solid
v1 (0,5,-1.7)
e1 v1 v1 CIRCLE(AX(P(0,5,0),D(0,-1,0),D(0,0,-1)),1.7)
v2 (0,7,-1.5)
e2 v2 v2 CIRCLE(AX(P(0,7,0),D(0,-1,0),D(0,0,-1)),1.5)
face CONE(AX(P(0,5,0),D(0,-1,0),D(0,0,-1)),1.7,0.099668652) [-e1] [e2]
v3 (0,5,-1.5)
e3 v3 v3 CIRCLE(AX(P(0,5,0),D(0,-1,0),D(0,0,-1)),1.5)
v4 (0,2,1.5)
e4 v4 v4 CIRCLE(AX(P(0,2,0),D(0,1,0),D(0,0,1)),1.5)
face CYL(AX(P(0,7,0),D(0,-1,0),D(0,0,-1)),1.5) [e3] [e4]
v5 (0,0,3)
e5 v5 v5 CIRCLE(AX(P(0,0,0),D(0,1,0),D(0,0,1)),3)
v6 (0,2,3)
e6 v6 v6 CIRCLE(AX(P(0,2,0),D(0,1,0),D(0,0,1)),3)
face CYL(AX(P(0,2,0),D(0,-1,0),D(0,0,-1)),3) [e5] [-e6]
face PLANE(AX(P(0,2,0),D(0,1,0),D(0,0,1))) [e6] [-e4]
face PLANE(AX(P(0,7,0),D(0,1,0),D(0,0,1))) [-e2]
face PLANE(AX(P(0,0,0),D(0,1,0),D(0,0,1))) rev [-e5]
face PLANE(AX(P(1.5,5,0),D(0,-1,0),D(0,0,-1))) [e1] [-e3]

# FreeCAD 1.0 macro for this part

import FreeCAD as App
import Part
import Sketcher

doc = App.newDocument("Part")
params = doc.addObject("Spreadsheet::Sheet", "Params")
for row, (alias, value) in enumerate([
    ("sketch1_diameter", "6 mm"),
    ("pad1_length", "2 mm"),
    ("sketch2_diameter", "3 mm"),
    ("pad2_length", "5 mm"),
    ("sketch3_height", "2 mm"),
    ("sketch3_width", "0.2 mm"),
    ("revolution_angle", "360 deg"),
], start=1):
    params.set(f"A{row}", alias)
    params.set(f"B{row}", "=" + value)
    params.setAlias(f"B{row}", alias)

body = doc.addObject("PartDesign::Body", "Body")

sketch1 = body.newObject("Sketcher::SketchObject", "Sketch")
sketch1.AttachmentSupport = (doc.getObject("XZ_Plane"), [""])
sketch1.MapMode = "FlatFace"
sketch1.addGeometry(Part.Circle(App.Vector(0, 0, 0), App.Vector(0, 0, 1), 3), False)
sketch1.addConstraint([
    Sketcher.Constraint("Coincident", 0, 3, -1, 1),
    Sketcher.Constraint("Diameter", 0, 6.0),
])
sketch1.setExpression("Constraints[1]", "Params.sketch1_diameter")
pad1 = body.newObject("PartDesign::Pad", "Pad")
pad1.Profile = sketch1
pad1.setExpression("Length", "Params.pad1_length")
pad1.Reversed = True

sketch2 = body.newObject("Sketcher::SketchObject", "Sketch001")
sketch2.AttachmentSupport = (doc.getObject("XZ_Plane"), [""])
sketch2.MapMode = "FlatFace"
sketch2.AttachmentOffset = App.Placement(App.Vector(0, 0, -2), App.Rotation())
sketch2.addGeometry(Part.Circle(App.Vector(0, 0, 0), App.Vector(0, 0, 1), 1.5), False)
sketch2.addConstraint([
    Sketcher.Constraint("Coincident", 0, 3, -1, 1),
    Sketcher.Constraint("Diameter", 0, 3.0),
])
sketch2.setExpression("Constraints[1]", "Params.sketch2_diameter")
pad2 = body.newObject("PartDesign::Pad", "Pad001")
pad2.Profile = sketch2
pad2.setExpression("Length", "Params.pad2_length")
pad2.Reversed = True

sketch3 = body.newObject("Sketcher::SketchObject", "Sketch002")
sketch3.AttachmentSupport = (doc.getObject("XY_Plane"), [""])
sketch3.MapMode = "FlatFace"
sketch3.addGeometry([
    Part.LineSegment(App.Vector(1.5, 7, 0), App.Vector(1.5, 5, 0)),
    Part.LineSegment(App.Vector(1.5, 5, 0), App.Vector(1.7, 5, 0)),
    Part.LineSegment(App.Vector(1.7, 5, 0), App.Vector(1.5, 7, 0)),
], False)
sketch3.addConstraint([
    Sketcher.Constraint("Coincident", 0, 2, 1, 1),
    Sketcher.Constraint("Coincident", 1, 2, 2, 1),
    Sketcher.Constraint("Coincident", 2, 2, 0, 1),
    Sketcher.Constraint("Vertical", 0),
    Sketcher.Constraint("Horizontal", 1),
    Sketcher.Constraint("DistanceY", 0, 2, 0, 1, 2.0),
    Sketcher.Constraint("DistanceX", 1, 1, 1, 2, 0.2),
    Sketcher.Constraint("DistanceY", -1, 1, 0, 2, 5.0),
    Sketcher.Constraint("DistanceX", -1, 1, 0, 2, 1.5),
])
sketch3.setExpression("Constraints[5]", "Params.sketch3_height")
sketch3.setExpression("Constraints[6]", "Params.sketch3_width")
revolution = body.newObject("PartDesign::Revolution", "Revolution")
revolution.Profile = sketch3
revolution.ReferenceAxis = (sketch3, ["V_Axis"])
revolution.setExpression("Angle", "Params.revolution_angle")

doc.recompute()
